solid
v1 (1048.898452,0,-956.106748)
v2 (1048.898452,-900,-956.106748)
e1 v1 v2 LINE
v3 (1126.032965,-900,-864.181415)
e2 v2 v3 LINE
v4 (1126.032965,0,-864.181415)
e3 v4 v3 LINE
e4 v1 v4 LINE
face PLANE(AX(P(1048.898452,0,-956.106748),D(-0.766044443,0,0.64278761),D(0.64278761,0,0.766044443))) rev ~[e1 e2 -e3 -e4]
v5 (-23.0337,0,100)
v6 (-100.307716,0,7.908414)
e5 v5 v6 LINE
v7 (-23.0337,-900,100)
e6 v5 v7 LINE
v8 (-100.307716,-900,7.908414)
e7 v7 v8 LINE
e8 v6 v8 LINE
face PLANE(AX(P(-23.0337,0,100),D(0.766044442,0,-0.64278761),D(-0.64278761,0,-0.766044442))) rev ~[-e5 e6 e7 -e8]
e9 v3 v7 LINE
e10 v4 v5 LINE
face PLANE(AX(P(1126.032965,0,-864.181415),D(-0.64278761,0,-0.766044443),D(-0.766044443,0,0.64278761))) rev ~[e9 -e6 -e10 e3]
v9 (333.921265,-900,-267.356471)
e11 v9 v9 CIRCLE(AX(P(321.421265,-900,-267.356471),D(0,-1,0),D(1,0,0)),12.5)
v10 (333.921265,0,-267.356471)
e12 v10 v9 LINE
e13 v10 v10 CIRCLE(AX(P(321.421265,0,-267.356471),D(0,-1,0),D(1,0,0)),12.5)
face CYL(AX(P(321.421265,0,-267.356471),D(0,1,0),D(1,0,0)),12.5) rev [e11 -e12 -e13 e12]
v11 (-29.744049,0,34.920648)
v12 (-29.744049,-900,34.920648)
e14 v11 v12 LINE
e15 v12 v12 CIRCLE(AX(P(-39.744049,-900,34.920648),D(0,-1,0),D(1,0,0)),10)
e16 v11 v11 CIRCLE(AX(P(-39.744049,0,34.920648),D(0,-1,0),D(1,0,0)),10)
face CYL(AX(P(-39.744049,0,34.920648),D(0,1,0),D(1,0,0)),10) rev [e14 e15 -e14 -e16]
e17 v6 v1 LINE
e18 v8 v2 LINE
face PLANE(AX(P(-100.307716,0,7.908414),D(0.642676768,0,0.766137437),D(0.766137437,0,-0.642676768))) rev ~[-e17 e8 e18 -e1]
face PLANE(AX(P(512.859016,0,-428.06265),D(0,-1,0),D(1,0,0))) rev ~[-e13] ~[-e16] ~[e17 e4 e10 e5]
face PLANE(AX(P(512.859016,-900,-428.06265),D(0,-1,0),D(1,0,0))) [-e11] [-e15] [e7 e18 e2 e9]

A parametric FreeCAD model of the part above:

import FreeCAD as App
import Part
import Sketcher
Q = App.Units.Quantity


def add_polygon(sketch, points):
    """Adds a closed chain of lines whose ends are joined by coincident constraints."""
    first, n = sketch.GeometryCount, len(points)
    for a, b in zip(points, points[1:] + points[:1]):
        sketch.addGeometry(Part.LineSegment(App.Vector(*a, 0), App.Vector(*b, 0)), False)
    for i in range(n):
        sketch.addConstraint(Sketcher.Constraint("Coincident", first + i, 2, first + (i + 1) % n, 1))

doc = App.newDocument("Part")
body = doc.addObject("PartDesign::Body", "Body")

# Sketch on XZ plane
sketch1 = body.newObject("Sketcher::SketchObject", "Sketch")
sketch1.AttachmentSupport = (doc.getObject("XZ_Plane"), [""])
sketch1.MapMode = "FlatFace"
add_polygon(sketch1, [(1126.032965, -864.181415), (-23.0337, 100), (-100.307716, 7.908414), (1048.898452, -956.106748)])  # lines 0-3
sketch1.addGeometry(Part.Circle(App.Vector(321.421265, -267.356471, 0), App.Vector(0, 0, 1), 12.5), False)  # 4
sketch1.addGeometry(Part.Circle(App.Vector(-39.744049, 34.920648, 0), App.Vector(0, 0, 1), 10), False)  # 5
sketch1.addConstraint([
    Sketcher.Constraint("Perpendicular", 0, 1),
    Sketcher.Constraint("Parallel", 1, 3),
    Sketcher.Constraint("Diameter", 4, Q("25 mm")),
    Sketcher.Constraint("Diameter", 5, Q("20 mm")),
    Sketcher.Constraint("Angle", 0, Q("140 deg")),
    Sketcher.Constraint("Distance", 0, Q("1500.000001 mm")),
    Sketcher.Constraint("Distance", 3, Q("120 mm")),
    Sketcher.Constraint("DistanceY", -1, 1, 0, 2, Q("100 mm")),
    Sketcher.Constraint("DistanceX", 0, 2, -1, 1, Q("23.0337 mm")),
    Sketcher.Constraint("DistanceX", 5, 3, 2, 2, Q("1088.642501 mm")),
    Sketcher.Constraint("DistanceX", 4, 3, 3, 2, Q("804.6117 mm")),
    Sketcher.Constraint("DistanceY", 4, 3, -1, 1, Q("267.356471 mm")),
    Sketcher.Constraint("DistanceY", 4, 3, 5, 3, Q("302.277119 mm")),
    Sketcher.Constraint("DistanceX", 1, 2, 4, 3, Q("421.728981 mm")),
])
pad1 = body.newObject("PartDesign::Pad", "Pad")
pad1.Profile = sketch1
pad1.Length = 900

doc.recompute()
